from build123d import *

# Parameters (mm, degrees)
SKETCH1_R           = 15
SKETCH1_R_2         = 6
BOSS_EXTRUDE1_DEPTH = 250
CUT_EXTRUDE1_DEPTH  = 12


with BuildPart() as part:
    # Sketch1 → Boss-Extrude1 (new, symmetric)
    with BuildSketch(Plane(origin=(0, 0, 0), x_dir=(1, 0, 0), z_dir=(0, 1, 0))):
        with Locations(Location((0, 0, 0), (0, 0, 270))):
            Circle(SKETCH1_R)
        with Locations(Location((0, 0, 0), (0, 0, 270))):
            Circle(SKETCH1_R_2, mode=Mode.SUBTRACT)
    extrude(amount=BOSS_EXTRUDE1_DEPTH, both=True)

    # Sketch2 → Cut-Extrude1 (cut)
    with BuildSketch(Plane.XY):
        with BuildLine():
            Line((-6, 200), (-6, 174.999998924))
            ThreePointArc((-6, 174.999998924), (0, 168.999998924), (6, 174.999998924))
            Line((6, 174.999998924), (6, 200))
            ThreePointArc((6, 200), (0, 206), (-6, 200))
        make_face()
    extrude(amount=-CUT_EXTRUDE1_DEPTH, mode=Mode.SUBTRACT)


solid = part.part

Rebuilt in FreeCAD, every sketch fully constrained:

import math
import FreeCAD as App
import Part
import Sketcher
from FreeCAD import Vector

doc = App.newDocument("Part")
body = doc.addObject("PartDesign::Body", "Body")

# Sketch on XZ plane
sketch1 = body.newObject("Sketcher::SketchObject", "Sketch")
sketch1.AttachmentSupport = (doc.getObject("XZ_Plane"), [""])
sketch1.MapMode = "FlatFace"
sketch1.addGeometry(Part.Circle(Vector(0, 0, 0), Vector(0, 0, 1), 15), False)
sketch1.addGeometry(Part.Circle(Vector(0, 0, 0), Vector(0, 0, 1), 6), False)
sketch1.addConstraint(Sketcher.Constraint("Coincident", 0, 3, -1, 1))
sketch1.addConstraint(Sketcher.Constraint("Coincident", 1, 3, -1, 1))
sketch1.addConstraint(Sketcher.Constraint("Diameter", 0, 30.0))
sketch1.addConstraint(Sketcher.Constraint("Diameter", 1, 12.0))
pad1 = body.newObject("PartDesign::Pad", "Pad")
pad1.Profile = sketch1
pad1.Length = 500
pad1.Midplane = True

# Sketch on XY plane
sketch2 = body.newObject("Sketcher::SketchObject", "Sketch001")
sketch2.AttachmentSupport = (doc.getObject("XY_Plane"), [""])
sketch2.MapMode = "FlatFace"
sketch2.addGeometry(Part.LineSegment(Vector(-6, 200, 0), Vector(-6, 175, 0)), False)
sketch2.addGeometry(Part.ArcOfCircle(Part.Circle(Vector(0, 175, 0), Vector(0, 0, 1), 6), math.radians(180), math.radians(360)), False)
sketch2.addGeometry(Part.LineSegment(Vector(6, 175, 0), Vector(6, 200, 0)), False)
sketch2.addGeometry(Part.ArcOfCircle(Part.Circle(Vector(0, 200, 0), Vector(0, 0, 1), 6), math.radians(0), math.radians(180)), False)
sketch2.addConstraint(Sketcher.Constraint("Tangent", 0, 2, 1, 1))
sketch2.addConstraint(Sketcher.Constraint("Tangent", 1, 2, 2, 1))
sketch2.addConstraint(Sketcher.Constraint("Tangent", 2, 2, 3, 1))
sketch2.addConstraint(Sketcher.Constraint("Tangent", 3, 2, 0, 1))
sketch2.addConstraint(Sketcher.Constraint("Vertical", 0))
sketch2.addConstraint(Sketcher.Constraint("Vertical", 2))
sketch2.addConstraint(Sketcher.Constraint("PointOnObject", 1, 3, -2))
sketch2.addConstraint(Sketcher.Constraint("Radius", 1, 6.0))
sketch2.addConstraint(Sketcher.Constraint("DistanceY", 0, 2, 0, 1, 25.000001))
sketch2.addConstraint(Sketcher.Constraint("DistanceY", -1, 1, 1, 3, 174.999999))
pocket1 = body.newObject("PartDesign::Pocket", "Pocket")
pocket1.Profile = sketch2
pocket1.Length = 12

doc.recompute()
